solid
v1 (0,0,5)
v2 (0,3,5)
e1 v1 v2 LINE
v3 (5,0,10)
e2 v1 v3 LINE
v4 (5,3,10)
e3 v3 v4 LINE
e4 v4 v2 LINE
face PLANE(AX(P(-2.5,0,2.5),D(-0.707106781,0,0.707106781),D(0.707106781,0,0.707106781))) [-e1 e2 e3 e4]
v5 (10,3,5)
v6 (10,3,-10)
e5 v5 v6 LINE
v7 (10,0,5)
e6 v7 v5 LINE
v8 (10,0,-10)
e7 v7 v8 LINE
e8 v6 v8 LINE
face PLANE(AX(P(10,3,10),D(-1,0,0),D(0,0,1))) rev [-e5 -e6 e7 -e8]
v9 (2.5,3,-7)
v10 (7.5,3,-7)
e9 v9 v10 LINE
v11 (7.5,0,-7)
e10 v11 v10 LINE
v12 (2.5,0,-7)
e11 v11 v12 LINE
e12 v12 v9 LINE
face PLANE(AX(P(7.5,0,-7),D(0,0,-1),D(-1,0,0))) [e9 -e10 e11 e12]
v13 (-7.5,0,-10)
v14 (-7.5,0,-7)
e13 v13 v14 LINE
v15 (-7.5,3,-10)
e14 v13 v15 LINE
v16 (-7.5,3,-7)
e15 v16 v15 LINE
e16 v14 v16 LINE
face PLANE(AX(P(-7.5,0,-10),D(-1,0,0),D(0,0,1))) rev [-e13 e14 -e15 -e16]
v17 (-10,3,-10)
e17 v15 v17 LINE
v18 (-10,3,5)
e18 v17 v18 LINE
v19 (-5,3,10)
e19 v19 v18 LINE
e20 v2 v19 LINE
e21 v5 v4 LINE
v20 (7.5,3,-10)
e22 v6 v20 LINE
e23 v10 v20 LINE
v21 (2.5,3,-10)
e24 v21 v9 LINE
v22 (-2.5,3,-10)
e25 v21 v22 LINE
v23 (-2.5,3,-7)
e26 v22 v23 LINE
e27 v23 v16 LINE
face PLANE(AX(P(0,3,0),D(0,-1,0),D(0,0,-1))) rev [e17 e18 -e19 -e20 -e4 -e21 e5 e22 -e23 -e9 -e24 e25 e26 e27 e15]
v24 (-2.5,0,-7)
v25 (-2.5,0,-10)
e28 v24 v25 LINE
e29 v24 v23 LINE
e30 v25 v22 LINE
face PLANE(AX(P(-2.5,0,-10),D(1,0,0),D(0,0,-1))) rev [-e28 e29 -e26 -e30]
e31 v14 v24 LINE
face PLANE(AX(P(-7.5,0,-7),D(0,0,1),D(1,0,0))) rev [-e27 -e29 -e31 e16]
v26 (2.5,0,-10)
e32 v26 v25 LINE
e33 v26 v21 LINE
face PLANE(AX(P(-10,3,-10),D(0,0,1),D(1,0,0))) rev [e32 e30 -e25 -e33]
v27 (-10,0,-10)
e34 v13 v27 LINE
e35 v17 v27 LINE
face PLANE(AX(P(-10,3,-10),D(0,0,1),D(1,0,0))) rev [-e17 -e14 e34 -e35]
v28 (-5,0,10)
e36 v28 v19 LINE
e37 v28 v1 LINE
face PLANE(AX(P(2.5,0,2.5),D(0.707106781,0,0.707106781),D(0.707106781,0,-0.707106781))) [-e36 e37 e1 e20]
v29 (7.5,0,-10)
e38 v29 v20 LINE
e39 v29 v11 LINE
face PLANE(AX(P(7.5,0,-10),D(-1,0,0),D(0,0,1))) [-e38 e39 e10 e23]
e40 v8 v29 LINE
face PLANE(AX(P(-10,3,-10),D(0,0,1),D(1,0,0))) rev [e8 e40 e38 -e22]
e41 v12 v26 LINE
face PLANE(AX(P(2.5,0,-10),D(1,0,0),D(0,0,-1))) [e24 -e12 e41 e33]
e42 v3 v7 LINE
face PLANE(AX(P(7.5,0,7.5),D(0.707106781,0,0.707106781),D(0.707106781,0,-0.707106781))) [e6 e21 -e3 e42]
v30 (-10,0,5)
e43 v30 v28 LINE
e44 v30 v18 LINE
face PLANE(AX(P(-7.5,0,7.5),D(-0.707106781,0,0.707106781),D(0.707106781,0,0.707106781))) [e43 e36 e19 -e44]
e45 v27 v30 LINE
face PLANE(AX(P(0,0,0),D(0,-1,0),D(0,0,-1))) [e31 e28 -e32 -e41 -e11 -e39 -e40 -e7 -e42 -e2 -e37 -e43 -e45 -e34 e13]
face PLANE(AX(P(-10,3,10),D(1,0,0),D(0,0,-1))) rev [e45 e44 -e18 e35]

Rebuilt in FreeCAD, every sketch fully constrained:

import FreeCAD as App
import Part
import Sketcher
Q = App.Units.Quantity


def add_polygon(sketch, points):
    """Adds a closed chain of lines whose ends are joined by coincident constraints."""
    first, n = sketch.GeometryCount, len(points)
    for a, b in zip(points, points[1:] + points[:1]):
        sketch.addGeometry(Part.LineSegment(App.Vector(*a, 0), App.Vector(*b, 0)), False)
    for i in range(n):
        sketch.addConstraint(Sketcher.Constraint("Coincident", first + i, 2, first + (i + 1) % n, 1))

doc = App.newDocument("Part")
body = doc.addObject("PartDesign::Body", "Body")

sketch1 = doc.addObject("Sketcher::SketchObject", "Sketch")
body.addObject(sketch1)
sketch1.AttachmentSupport = (doc.XZ_Plane, [""])
sketch1.MapMode = "FlatFace"
add_polygon(sketch1, [(-10, -10), (-10, 10), (10, 10), (10, -10)])
sketch1.addConstraint(Sketcher.Constraint("Vertical", 0))
sketch1.addConstraint(Sketcher.Constraint("Horizontal", 1))
sketch1.addConstraint(Sketcher.Constraint("Vertical", 2))
sketch1.addConstraint(Sketcher.Constraint("Horizontal", 3))
sketch1.addConstraint(Sketcher.Constraint("Symmetric", 0, 2, 2, 2, -1, 1))
sketch1.addConstraint(Sketcher.Constraint("Equal", 3, 0))
sketch1.addConstraint(Sketcher.Constraint("DistanceX", 1, 1, 1, 2, Q("20 mm")))
pad1 = doc.addObject("PartDesign::Pad", "Pad")
body.addObject(pad1)
pad1.Profile = sketch1
pad1.Length = 3
pad1.Reversed = True

sketch2 = doc.addObject("Sketcher::SketchObject", "Sketch001")
body.addObject(sketch2)
sketch2.AttachmentSupport = (doc.XZ_Plane, [""])
sketch2.MapMode = "FlatFace"
sketch2.AttachmentOffset = App.Placement(App.Vector(0, 0, -3), App.Rotation())
add_polygon(sketch2, [(-5, 10), (-10, 5), (-10, 10)])
add_polygon(sketch2, [(0, 5), (-5, 10), (5, 10)])
add_polygon(sketch2, [(10, 5), (5, 10), (10, 10)])
sketch2.addConstraint(Sketcher.Constraint("Vertical", 1))
sketch2.addConstraint(Sketcher.Constraint("Horizontal", 2))
sketch2.addConstraint(Sketcher.Constraint("Horizontal", 4))
sketch2.addConstraint(Sketcher.Constraint("Horizontal", 7))
sketch2.addConstraint(Sketcher.Constraint("Vertical", 8))
sketch2.addConstraint(Sketcher.Constraint("Coincident", 3, 2, 2, 2))
sketch2.addConstraint(Sketcher.Constraint("Coincident", 6, 2, 4, 2))
sketch2.addConstraint(Sketcher.Constraint("Symmetric", 0, 2, 8, 2, -2))
sketch2.addConstraint(Sketcher.Constraint("PointOnObject", 5, 2, -2))
sketch2.addConstraint(Sketcher.Constraint("Perpendicular", 0, 3))
sketch2.addConstraint(Sketcher.Constraint("Perpendicular", 3, 5))
sketch2.addConstraint(Sketcher.Constraint("Horizontal", 0, 2, 5, 2))
sketch2.addConstraint(Sketcher.Constraint("Equal", 2, 7))
sketch2.addConstraint(Sketcher.Constraint("DistanceX", 2, 1, 2, 2, Q("5 mm")))
sketch2.addConstraint(Sketcher.Constraint("DistanceY", -1, 1, 0, 2, Q("5 mm")))
pocket1 = doc.addObject("PartDesign::Pocket", "Pocket")
body.addObject(pocket1)
pocket1.Profile = sketch2
pocket1.Type = "ThroughAll"
pocket1.Midplane = True

sketch3 = doc.addObject("Sketcher::SketchObject", "Sketch002")
body.addObject(sketch3)
sketch3.AttachmentSupport = (doc.XZ_Plane, [""])
sketch3.MapMode = "FlatFace"
sketch3.AttachmentOffset = App.Placement(App.Vector(0, 0, 1), App.Rotation())
add_polygon(sketch3, [(-7.5, -10), (-7.5, -7), (-2.5, -7), (-2.5, -10)])
sketch3.addConstraint(Sketcher.Constraint("Vertical", 0))
sketch3.addConstraint(Sketcher.Constraint("Horizontal", 1))
sketch3.addConstraint(Sketcher.Constraint("Vertical", 2))
sketch3.addConstraint(Sketcher.Constraint("Horizontal", 3))
sketch3.addConstraint(Sketcher.Constraint("DistanceX", 1, 1, 1, 2, Q("5 mm")))
sketch3.addConstraint(Sketcher.Constraint("DistanceY", 0, 1, 0, 2, Q("3 mm")))
sketch3.addConstraint(Sketcher.Constraint("DistanceY", 0, 2, -1, 1, Q("7 mm")))
sketch3.addConstraint(Sketcher.Constraint("DistanceX", 0, 2, -1, 1, Q("7.5 mm")))
pocket2 = doc.addObject("PartDesign::Pocket", "Pocket001")
body.addObject(pocket2)
pocket2.Profile = sketch3
pocket2.Length = 5
doc.recompute()

mirrored = doc.addObject("PartDesign::Mirrored", "Mirrored")
body.addObject(mirrored)
mirrored.Originals = [pocket2]
mirrored.MirrorPlane = (doc.YZ_Plane, [""])
body.Tip = mirrored

doc.recompute()
